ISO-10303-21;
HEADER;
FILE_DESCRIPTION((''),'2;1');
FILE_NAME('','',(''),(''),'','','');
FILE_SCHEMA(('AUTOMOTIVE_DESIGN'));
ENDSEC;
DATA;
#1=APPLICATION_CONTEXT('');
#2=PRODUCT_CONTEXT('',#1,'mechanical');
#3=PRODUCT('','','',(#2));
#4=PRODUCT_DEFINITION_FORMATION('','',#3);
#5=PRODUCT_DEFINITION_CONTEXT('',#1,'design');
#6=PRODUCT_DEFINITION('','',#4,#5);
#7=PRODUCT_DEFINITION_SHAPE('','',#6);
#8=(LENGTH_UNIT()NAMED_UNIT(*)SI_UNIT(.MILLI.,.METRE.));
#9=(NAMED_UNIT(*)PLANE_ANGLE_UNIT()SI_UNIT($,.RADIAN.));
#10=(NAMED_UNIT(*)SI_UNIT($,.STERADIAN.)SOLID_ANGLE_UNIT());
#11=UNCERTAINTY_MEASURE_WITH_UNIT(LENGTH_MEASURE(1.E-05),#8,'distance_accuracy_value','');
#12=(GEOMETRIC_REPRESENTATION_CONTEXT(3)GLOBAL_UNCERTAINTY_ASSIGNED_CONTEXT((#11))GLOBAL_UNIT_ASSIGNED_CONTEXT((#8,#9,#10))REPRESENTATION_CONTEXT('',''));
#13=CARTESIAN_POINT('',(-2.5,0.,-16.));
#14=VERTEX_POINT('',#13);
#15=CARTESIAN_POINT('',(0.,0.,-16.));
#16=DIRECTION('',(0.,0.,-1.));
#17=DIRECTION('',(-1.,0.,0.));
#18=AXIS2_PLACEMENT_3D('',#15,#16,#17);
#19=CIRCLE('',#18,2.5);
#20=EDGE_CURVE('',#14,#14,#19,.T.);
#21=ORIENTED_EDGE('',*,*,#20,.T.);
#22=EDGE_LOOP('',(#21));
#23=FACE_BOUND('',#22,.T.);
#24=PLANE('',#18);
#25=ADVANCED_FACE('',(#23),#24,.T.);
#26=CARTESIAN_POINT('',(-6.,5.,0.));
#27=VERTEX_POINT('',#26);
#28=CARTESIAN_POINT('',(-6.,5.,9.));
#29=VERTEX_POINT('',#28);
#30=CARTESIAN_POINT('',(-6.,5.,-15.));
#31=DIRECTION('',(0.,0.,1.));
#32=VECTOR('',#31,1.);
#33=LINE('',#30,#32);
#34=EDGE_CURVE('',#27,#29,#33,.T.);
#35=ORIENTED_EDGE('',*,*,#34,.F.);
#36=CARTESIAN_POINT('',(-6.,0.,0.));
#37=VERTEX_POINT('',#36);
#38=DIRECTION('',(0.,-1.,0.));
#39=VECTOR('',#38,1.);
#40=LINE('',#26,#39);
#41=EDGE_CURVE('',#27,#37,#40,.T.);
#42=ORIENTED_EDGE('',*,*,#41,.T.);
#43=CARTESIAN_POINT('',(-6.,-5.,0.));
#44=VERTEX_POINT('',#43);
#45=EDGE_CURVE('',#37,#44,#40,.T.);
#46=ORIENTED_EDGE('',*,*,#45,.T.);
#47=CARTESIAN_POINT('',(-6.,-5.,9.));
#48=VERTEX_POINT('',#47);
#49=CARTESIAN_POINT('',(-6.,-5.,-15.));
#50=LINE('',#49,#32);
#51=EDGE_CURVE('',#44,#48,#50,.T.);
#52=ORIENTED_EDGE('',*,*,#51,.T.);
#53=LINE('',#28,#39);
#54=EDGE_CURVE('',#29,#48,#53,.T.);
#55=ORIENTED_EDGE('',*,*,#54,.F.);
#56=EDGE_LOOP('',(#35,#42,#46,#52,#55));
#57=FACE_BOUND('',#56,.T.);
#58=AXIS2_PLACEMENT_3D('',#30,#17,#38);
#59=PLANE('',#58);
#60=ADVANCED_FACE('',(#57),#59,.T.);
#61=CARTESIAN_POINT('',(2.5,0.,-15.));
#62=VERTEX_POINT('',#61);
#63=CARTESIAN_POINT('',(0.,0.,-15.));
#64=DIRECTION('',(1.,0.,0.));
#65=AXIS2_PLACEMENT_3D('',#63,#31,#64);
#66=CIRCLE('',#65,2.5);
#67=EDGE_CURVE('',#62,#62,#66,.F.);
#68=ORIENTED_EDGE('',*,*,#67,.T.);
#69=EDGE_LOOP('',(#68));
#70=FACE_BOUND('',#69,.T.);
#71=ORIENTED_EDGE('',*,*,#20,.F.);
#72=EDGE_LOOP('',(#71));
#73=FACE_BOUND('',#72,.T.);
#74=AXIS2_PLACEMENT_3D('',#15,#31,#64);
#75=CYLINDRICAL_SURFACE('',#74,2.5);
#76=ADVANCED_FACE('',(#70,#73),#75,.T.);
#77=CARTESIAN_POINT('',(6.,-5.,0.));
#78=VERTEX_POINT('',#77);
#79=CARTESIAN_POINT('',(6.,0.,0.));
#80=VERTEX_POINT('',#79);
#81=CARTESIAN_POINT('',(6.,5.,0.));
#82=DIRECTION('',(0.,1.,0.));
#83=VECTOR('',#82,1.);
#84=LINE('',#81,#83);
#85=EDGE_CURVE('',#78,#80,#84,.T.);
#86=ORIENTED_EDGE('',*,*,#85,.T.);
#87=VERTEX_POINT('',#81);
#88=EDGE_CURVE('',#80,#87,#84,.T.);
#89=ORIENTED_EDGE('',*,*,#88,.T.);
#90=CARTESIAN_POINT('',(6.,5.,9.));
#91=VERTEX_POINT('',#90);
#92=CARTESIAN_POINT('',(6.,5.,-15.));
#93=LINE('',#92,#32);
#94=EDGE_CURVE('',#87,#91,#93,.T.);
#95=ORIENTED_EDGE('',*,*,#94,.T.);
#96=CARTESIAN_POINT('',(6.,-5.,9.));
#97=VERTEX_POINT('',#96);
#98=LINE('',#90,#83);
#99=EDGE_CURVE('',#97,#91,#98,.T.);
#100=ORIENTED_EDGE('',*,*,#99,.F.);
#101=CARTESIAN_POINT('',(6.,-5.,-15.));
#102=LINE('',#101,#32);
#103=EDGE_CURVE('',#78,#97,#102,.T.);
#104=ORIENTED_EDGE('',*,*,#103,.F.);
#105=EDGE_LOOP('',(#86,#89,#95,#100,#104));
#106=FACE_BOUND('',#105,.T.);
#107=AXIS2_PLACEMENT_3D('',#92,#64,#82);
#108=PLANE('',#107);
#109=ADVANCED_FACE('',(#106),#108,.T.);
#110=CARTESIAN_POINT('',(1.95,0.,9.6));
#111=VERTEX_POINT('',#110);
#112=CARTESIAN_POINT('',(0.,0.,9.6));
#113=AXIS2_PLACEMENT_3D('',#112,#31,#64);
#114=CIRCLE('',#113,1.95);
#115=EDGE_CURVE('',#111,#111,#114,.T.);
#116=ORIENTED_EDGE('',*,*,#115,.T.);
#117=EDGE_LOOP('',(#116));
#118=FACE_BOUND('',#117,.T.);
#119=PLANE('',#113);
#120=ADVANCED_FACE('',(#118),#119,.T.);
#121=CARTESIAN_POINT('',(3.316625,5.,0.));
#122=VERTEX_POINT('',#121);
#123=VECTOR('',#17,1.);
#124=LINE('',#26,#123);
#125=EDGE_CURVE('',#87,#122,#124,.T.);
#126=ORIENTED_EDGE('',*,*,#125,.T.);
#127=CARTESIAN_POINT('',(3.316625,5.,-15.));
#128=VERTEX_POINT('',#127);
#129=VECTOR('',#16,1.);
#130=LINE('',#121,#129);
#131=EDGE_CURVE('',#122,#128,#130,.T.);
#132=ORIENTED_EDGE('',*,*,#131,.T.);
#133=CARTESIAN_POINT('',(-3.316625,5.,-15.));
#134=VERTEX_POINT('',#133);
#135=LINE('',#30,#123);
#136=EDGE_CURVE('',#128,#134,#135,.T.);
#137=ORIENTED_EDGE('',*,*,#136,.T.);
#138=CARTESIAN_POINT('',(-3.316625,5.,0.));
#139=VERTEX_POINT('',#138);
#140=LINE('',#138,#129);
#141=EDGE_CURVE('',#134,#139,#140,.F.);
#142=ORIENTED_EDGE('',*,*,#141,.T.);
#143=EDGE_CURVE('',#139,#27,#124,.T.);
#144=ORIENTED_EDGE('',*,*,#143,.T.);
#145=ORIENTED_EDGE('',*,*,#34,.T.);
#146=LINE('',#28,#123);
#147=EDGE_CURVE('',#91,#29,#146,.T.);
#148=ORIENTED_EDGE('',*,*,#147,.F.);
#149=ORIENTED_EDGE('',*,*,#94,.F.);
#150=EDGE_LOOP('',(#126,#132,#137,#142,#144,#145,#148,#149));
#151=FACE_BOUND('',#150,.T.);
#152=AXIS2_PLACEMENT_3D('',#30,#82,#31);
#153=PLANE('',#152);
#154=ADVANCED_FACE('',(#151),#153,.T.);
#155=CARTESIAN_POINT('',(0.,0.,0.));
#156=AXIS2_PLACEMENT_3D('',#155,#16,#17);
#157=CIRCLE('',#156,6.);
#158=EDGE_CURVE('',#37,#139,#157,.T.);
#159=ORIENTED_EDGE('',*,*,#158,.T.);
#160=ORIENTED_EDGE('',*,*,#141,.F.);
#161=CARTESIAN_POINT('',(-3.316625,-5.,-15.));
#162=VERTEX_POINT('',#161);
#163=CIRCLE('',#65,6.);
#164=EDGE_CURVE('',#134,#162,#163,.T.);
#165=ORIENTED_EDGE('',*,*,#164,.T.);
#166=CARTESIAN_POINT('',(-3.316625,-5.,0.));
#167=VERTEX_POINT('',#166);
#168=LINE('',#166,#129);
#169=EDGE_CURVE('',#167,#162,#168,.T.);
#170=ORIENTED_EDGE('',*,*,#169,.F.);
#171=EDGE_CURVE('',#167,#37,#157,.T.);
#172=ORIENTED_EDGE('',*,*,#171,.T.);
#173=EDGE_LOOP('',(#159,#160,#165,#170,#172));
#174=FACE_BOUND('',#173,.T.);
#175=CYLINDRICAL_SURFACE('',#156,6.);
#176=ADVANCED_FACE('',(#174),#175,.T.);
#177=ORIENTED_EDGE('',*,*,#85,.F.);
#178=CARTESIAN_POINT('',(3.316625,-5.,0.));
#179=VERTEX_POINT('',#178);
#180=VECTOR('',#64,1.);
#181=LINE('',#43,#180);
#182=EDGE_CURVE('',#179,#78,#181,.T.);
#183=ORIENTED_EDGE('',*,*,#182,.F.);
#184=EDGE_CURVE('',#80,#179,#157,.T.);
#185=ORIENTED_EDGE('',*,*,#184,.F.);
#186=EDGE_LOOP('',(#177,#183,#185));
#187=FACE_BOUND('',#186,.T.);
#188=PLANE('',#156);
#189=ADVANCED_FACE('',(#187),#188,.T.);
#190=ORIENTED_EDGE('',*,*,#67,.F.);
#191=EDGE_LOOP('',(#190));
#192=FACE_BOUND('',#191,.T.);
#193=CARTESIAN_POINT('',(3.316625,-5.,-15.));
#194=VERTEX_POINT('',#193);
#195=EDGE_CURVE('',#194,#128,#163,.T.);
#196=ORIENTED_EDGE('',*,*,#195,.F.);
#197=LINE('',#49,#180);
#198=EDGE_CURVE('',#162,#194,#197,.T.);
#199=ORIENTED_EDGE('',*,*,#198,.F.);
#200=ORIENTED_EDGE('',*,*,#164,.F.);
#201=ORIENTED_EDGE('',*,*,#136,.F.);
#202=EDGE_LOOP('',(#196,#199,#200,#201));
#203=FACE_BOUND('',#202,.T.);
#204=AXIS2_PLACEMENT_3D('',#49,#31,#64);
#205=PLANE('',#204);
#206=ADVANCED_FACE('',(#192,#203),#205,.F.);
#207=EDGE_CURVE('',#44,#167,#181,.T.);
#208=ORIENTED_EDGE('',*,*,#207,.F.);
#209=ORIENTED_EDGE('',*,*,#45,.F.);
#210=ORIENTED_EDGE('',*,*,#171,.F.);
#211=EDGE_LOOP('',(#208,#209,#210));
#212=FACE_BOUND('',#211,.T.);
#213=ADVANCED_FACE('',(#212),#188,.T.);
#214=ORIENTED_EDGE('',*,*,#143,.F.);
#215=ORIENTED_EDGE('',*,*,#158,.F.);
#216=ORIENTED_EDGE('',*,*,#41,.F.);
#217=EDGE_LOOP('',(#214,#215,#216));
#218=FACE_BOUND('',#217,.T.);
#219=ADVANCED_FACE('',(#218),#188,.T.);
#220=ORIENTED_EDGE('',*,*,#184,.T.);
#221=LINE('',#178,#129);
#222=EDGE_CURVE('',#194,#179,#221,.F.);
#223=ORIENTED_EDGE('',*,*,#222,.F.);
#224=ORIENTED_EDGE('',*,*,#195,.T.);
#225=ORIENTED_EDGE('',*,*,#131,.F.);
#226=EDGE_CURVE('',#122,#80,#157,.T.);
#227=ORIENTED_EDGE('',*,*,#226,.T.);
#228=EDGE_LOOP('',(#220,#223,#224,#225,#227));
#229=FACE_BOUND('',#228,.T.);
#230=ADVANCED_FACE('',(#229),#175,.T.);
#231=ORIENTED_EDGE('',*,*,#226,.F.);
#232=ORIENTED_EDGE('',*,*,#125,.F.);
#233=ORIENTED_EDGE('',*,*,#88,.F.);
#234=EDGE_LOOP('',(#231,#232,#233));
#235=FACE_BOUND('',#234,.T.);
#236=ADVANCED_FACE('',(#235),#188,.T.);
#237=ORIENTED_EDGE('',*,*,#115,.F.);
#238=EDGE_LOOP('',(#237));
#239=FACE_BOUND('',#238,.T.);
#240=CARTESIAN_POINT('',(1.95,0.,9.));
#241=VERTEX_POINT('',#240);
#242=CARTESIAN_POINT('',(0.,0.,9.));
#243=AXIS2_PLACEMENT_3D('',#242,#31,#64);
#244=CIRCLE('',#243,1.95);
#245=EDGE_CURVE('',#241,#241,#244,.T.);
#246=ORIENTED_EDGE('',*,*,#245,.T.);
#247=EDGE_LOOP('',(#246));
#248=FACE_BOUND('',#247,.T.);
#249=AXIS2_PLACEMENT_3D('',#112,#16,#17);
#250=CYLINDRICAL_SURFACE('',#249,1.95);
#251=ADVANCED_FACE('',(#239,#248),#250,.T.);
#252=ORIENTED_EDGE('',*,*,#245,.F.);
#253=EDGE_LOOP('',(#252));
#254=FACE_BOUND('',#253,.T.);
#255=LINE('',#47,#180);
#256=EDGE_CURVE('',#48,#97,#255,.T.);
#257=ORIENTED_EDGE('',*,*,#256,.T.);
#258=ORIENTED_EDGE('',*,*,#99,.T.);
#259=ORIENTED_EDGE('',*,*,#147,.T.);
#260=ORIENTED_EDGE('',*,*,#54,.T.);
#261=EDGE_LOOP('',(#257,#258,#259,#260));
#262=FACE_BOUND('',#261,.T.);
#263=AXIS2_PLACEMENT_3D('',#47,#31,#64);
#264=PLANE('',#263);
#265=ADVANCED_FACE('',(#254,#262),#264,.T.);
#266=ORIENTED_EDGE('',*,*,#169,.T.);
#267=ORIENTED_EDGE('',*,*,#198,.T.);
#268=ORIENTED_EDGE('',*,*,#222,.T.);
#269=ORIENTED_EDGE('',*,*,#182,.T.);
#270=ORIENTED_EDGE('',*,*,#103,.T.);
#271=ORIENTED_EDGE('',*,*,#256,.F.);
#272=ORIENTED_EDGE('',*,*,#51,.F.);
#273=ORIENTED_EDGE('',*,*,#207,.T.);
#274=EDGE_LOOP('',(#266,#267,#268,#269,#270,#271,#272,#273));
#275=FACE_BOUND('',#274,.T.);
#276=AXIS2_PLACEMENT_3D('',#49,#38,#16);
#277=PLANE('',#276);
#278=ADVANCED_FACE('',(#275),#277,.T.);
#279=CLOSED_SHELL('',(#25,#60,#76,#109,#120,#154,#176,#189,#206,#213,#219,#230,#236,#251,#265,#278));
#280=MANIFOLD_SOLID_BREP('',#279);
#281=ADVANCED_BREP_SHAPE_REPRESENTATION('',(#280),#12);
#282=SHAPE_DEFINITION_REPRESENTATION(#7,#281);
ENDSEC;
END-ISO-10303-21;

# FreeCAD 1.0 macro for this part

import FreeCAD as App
import Part
import Sketcher


def add_polygon(sketch, points):
    """Adds a closed chain of lines whose ends are joined by coincident constraints."""
    first, n = sketch.GeometryCount, len(points)
    for a, b in zip(points, points[1:] + points[:1]):
        sketch.addGeometry(Part.LineSegment(App.Vector(*a, 0), App.Vector(*b, 0)), False)
    for i in range(n):
        sketch.addConstraint(Sketcher.Constraint("Coincident", first + i, 2, first + (i + 1) % n, 1))

doc = App.newDocument("Part")
body = doc.addObject("PartDesign::Body", "Body")

# Sketch on XY plane
sketch1 = body.newObject("Sketcher::SketchObject", "Sketch")
sketch1.AttachmentSupport = (doc.getObject("XY_Plane"), [""])
sketch1.MapMode = "FlatFace"
add_polygon(sketch1, [(-6, 5), (-6, -5), (6, -5), (6, 5)])  # lines 0-3
sketch1.addConstraint([
    Sketcher.Constraint("Vertical", 0),
    Sketcher.Constraint("Horizontal", 1),
    Sketcher.Constraint("Vertical", 2),
    Sketcher.Constraint("Horizontal", 3),
    Sketcher.Constraint("Symmetric", 0, 2, 2, 2, -1, 1),
    Sketcher.Constraint("DistanceX", 1, 1, 1, 2, 12.0),
    Sketcher.Constraint("DistanceY", 0, 2, 0, 1, 10.0),
])
pad1 = body.newObject("PartDesign::Pad", "Pad")
pad1.Profile = sketch1
pad1.Type = "TwoLengths"
pad1.Length = 9
pad1.Length2 = 15

# Sketch on XY plane
sketch2 = body.newObject("Sketcher::SketchObject", "Sketch001")
sketch2.AttachmentSupport = (doc.getObject("XY_Plane"), [""])
sketch2.MapMode = "FlatFace"
sketch2.AttachmentOffset = App.Placement(App.Vector(0, 0, -15), App.Rotation())
sketch2.addGeometry([
    Part.Circle(App.Vector(0, 0, 0), App.Vector(0, 0, 1), 9),
    Part.Circle(App.Vector(0, 0, 0), App.Vector(0, 0, 1), 6),
], False)
sketch2.addConstraint([
    Sketcher.Constraint("Coincident", 0, 3, -1, 1),
    Sketcher.Constraint("Coincident", 1, 3, -1, 1),
    Sketcher.Constraint("Diameter", 1, 12.0),
    Sketcher.Constraint("Diameter", 0, 17.08),
])
pocket1 = body.newObject("PartDesign::Pocket", "Pocket")
pocket1.Profile = sketch2
pocket1.Length = 15
pocket1.Reversed = True

# Sketch on XY plane
sketch3 = body.newObject("Sketcher::SketchObject", "Sketch002")
sketch3.AttachmentSupport = (doc.getObject("XY_Plane"), [""])
sketch3.MapMode = "FlatFace"
sketch3.AttachmentOffset = App.Placement(App.Vector(0, 0, -15), App.Rotation())
sketch3.addGeometry(Part.Circle(App.Vector(0, 0, 0), App.Vector(0, 0, 1), 2.5), False)
sketch3.addConstraint([
    Sketcher.Constraint("Coincident", 0, 3, -1, 1),
    Sketcher.Constraint("Diameter", 0, 5.0),
])
pad2 = body.newObject("PartDesign::Pad", "Pad001")
pad2.Profile = sketch3
pad2.Length = 1
pad2.Reversed = True

# Sketch on XY plane
sketch4 = body.newObject("Sketcher::SketchObject", "Sketch003")
sketch4.AttachmentSupport = (doc.getObject("XY_Plane"), [""])
sketch4.MapMode = "FlatFace"
sketch4.AttachmentOffset = App.Placement(App.Vector(0, 0, 9), App.Rotation())
sketch4.addGeometry(Part.Circle(App.Vector(0, 0, 0), App.Vector(0, 0, 1), 1.9), False)
sketch4.addConstraint([
    Sketcher.Constraint("Coincident", 0, 3, -1, 1),
    Sketcher.Constraint("Diameter", 0, 3.9),
])
pad3 = body.newObject("PartDesign::Pad", "Pad002")
pad3.Profile = sketch4
pad3.Length = 0.6

doc.recompute()
